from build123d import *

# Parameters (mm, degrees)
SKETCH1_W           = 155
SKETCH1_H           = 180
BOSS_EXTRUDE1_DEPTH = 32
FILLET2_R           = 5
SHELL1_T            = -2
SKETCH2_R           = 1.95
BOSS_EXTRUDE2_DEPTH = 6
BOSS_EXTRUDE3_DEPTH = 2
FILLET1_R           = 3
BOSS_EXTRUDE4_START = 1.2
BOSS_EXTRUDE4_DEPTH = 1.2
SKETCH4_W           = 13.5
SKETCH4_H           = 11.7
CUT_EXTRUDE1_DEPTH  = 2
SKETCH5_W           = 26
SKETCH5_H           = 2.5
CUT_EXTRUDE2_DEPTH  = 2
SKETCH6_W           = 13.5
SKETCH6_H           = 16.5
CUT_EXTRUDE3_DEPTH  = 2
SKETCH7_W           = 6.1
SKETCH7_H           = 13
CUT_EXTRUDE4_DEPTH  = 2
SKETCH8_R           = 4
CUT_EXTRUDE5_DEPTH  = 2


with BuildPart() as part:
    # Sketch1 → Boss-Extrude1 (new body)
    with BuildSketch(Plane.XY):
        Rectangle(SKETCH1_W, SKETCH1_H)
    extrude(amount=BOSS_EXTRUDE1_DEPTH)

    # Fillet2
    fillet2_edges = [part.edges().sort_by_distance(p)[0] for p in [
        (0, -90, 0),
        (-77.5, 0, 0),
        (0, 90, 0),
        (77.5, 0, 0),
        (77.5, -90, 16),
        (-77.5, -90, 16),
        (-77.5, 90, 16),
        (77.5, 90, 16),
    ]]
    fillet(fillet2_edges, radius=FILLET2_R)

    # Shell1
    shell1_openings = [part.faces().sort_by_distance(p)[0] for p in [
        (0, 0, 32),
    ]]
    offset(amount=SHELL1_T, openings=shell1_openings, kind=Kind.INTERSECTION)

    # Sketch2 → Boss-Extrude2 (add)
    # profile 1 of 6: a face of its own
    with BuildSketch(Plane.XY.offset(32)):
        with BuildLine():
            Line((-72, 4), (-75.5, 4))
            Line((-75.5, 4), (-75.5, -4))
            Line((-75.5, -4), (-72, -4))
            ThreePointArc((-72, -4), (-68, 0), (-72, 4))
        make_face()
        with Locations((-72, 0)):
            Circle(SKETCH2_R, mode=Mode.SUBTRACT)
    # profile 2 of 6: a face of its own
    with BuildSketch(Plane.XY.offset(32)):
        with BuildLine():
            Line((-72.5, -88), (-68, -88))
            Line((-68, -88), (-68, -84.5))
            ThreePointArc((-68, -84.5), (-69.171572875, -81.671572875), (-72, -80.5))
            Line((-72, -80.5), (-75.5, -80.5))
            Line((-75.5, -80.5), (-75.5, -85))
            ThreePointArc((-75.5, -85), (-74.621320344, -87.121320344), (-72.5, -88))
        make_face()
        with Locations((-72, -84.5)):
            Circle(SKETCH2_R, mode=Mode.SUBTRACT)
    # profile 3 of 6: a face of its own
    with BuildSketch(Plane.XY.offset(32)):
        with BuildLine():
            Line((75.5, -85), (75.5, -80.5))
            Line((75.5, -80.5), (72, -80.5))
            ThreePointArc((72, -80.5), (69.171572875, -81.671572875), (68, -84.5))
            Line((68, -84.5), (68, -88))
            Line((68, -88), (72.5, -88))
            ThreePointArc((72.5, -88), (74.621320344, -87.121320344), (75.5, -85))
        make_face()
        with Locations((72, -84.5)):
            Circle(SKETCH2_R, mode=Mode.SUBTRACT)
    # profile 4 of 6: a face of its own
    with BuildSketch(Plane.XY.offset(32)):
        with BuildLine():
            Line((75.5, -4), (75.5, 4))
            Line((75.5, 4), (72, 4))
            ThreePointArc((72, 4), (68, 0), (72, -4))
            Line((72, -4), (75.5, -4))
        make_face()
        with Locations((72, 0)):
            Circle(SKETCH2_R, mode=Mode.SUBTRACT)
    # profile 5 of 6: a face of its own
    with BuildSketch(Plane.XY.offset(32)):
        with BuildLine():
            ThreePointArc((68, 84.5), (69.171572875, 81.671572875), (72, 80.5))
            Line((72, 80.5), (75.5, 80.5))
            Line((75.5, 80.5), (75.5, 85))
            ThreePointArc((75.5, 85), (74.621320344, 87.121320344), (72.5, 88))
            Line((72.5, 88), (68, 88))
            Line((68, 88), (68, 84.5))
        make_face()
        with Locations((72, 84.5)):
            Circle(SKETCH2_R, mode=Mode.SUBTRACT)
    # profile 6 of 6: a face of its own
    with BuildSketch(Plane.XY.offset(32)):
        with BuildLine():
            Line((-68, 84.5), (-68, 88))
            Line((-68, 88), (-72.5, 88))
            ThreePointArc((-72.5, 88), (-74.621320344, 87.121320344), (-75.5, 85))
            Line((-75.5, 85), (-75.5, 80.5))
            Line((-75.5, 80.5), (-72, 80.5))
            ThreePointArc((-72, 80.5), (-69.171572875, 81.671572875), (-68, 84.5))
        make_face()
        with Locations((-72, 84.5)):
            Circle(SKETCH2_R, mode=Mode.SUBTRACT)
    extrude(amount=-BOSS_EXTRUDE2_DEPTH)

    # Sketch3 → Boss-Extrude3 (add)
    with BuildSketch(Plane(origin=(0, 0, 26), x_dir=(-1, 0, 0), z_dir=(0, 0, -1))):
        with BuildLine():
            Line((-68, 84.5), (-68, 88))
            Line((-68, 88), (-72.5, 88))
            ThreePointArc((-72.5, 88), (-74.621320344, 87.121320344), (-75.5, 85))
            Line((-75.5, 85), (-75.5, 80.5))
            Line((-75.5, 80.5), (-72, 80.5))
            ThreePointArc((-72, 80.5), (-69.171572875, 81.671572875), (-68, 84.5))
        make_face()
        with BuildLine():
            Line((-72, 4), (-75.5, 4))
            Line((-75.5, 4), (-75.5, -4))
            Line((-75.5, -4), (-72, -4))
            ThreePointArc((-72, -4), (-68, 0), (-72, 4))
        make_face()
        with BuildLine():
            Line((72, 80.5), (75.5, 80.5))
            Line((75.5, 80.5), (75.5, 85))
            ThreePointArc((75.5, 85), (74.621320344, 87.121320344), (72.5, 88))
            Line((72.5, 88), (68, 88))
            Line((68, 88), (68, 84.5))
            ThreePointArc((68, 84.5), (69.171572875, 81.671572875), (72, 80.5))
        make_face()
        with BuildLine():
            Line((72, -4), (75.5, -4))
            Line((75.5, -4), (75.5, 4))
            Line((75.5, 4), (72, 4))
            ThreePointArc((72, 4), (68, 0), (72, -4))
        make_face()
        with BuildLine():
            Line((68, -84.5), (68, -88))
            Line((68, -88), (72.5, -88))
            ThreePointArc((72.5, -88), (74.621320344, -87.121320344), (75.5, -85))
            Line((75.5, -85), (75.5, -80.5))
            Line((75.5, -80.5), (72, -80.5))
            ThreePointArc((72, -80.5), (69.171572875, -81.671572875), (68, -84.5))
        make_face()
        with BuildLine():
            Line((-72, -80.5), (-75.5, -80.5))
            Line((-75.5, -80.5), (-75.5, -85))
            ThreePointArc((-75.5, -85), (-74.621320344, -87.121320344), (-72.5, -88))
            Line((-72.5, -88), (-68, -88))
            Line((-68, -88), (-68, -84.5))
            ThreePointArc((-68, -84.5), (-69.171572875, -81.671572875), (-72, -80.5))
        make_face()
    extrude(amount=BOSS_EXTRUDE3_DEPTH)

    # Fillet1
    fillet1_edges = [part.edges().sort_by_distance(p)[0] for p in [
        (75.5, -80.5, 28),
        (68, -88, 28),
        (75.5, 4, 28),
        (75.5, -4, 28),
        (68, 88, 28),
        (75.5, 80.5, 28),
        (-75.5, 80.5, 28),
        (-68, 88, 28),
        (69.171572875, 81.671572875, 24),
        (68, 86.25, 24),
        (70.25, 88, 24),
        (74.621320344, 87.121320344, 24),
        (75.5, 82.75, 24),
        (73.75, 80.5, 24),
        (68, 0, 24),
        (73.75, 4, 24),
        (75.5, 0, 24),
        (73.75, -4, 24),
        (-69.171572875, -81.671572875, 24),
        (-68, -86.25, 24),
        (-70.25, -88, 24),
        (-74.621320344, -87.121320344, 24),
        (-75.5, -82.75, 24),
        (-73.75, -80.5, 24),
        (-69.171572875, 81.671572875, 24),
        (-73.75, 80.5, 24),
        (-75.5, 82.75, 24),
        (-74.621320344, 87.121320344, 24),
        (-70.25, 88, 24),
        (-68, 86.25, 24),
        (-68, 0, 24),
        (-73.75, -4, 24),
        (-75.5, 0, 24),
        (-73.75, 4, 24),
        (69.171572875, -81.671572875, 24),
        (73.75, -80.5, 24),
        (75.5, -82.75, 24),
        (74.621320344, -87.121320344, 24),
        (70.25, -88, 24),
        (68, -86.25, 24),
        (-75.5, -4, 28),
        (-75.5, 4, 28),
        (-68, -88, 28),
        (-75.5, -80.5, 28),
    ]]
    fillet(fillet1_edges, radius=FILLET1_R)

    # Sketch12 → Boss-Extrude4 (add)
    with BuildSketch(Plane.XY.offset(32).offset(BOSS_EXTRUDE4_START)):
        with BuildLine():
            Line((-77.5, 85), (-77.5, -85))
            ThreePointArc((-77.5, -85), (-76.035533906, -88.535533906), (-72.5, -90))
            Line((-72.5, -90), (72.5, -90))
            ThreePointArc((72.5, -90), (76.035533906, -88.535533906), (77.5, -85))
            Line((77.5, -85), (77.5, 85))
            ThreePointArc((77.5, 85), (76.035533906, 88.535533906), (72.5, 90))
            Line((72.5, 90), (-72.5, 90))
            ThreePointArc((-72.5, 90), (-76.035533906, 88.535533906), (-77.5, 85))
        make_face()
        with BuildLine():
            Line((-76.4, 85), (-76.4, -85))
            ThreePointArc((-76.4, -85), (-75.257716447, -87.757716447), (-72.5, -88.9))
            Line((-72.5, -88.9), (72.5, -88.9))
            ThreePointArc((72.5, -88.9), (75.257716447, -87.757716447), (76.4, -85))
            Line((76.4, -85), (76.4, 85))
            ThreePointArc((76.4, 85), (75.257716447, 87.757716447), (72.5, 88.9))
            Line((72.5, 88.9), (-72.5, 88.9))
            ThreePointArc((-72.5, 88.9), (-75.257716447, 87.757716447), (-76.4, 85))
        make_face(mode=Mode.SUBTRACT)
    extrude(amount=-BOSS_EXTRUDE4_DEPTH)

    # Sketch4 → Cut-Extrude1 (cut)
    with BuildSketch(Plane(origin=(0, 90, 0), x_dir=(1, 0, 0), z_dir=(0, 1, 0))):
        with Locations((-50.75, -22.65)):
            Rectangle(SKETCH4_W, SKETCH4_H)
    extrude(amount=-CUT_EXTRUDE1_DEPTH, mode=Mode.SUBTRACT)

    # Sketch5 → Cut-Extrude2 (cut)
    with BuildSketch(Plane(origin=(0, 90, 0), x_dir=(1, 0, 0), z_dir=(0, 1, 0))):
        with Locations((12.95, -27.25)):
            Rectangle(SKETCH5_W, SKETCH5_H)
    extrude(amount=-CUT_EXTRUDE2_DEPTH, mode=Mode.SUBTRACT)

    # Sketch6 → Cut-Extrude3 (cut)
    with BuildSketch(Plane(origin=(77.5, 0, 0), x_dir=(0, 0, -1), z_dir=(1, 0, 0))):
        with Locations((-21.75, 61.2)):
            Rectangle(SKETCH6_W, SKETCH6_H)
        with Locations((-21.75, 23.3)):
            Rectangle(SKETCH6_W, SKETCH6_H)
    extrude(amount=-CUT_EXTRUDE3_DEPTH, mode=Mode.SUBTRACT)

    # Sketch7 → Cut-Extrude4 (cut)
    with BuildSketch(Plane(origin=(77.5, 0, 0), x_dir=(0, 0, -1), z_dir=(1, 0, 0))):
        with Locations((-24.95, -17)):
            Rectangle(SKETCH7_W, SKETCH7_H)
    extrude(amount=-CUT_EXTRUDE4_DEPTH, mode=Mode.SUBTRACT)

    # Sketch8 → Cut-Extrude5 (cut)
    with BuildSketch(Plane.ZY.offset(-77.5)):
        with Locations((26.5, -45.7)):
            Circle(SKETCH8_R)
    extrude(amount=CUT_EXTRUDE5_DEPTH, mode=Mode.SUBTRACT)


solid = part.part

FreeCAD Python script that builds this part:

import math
import FreeCAD as App
import Part
import Sketcher

V = App.Vector
Q = App.Units.Quantity


def edges_at(feature, points):
    """Names of the edges that pass closest to the given points."""
    edges = feature.Shape.Edges
    near = lambda p: min(range(len(edges)), key=lambda i: edges[i].distToShape(Part.Vertex(*p))[0])
    return sorted({f"Edge{near(p) + 1}" for p in points})


def faces_at(feature, points):
    """Names of the faces that lie closest to the given points."""
    faces = feature.Shape.Faces
    near = lambda p: min(range(len(faces)), key=lambda i: faces[i].distToShape(Part.Vertex(*p))[0])
    return sorted({f"Face{near(p) + 1}" for p in points})

doc = App.newDocument("Part")
body = doc.addObject("PartDesign::Body", "Body")

# Sketch on XY plane
sketch1 = body.newObject("Sketcher::SketchObject", "Sketch")
sketch1.AttachmentSupport = (doc.getObject("XY_Plane"), [""])
sketch1.MapMode = "FlatFace"
sketch1.addGeometry([
    Part.LineSegment(V(-78, 90, 0), V(-78, -90, 0)),
    Part.LineSegment(V(-78, -90, 0), V(78, -90, 0)),
    Part.LineSegment(V(78, -90, 0), V(78, 90, 0)),
    Part.LineSegment(V(78, 90, 0), V(-78, 90, 0)),
], False)
sketch1.addConstraint([
    Sketcher.Constraint("Coincident", 0, 2, 1, 1),
    Sketcher.Constraint("Coincident", 1, 2, 2, 1),
    Sketcher.Constraint("Coincident", 2, 2, 3, 1),
    Sketcher.Constraint("Coincident", 3, 2, 0, 1),
    Sketcher.Constraint("Vertical", 0),
    Sketcher.Constraint("Horizontal", 1),
    Sketcher.Constraint("Vertical", 2),
    Sketcher.Constraint("Horizontal", 3),
    Sketcher.Constraint("Symmetric", 0, 2, 2, 2, -1, 1),
    Sketcher.Constraint("DistanceX", 1, 1, 1, 2, Q("155 mm")),
    Sketcher.Constraint("DistanceY", 0, 2, 0, 1, Q("180 mm")),
])
pad1 = body.newObject("PartDesign::Pad", "Pad")
pad1.Profile = sketch1
pad1.Length = 32
doc.recompute()

fillet = body.newObject("PartDesign::Fillet", "Fillet")
fillet.Base = (pad1, edges_at(pad1, [
    (0, -90, 0),
    (-77.5, 0, 0),
    (0, 90, 0),
    (77.5, 0, 0),
    (77.5, -90, 16),
    (-77.5, -90, 16),
    (-77.5, 90, 16),
    (77.5, 90, 16),
]))
fillet.Radius = 5
doc.recompute()

thickness = body.newObject("PartDesign::Thickness", "Thickness")
thickness.Base = (fillet, faces_at(fillet, [(0, 0, 32)]))
thickness.Value = 2
thickness.Reversed = True
thickness.Join = "Intersection"

# Sketch on XY plane
sketch2 = body.newObject("Sketcher::SketchObject", "Sketch001")
sketch2.AttachmentSupport = (doc.getObject("XY_Plane"), [""])
sketch2.MapMode = "FlatFace"
sketch2.AttachmentOffset = App.Placement(V(0, 0, 32), App.Rotation())
sketch2.addGeometry([
    Part.LineSegment(V(-72, 4, 0), V(-75.5, 4, 0)),  # 0
    Part.LineSegment(V(-75.5, 4, 0), V(-75.5, -4, 0)),  # 1
    Part.LineSegment(V(-75.5, -4, 0), V(-72, -4, 0)),  # 2
    Part.ArcOfCircle(Part.Circle(V(-72, 0, 0), V(0, 0, 1), 4), math.radians(-90), math.radians(90)),  # 3
    Part.Circle(V(-72, 0, 0), V(0, 0, 1), 1.9),  # 4
    Part.LineSegment(V(-72.5, -88, 0), V(-68, -88, 0)),  # 5
    Part.LineSegment(V(-68, -88, 0), V(-68, -84.5, 0)),  # 6
    Part.ArcOfCircle(Part.Circle(V(-72, -84.5, 0), V(0, 0, 1), 4), math.radians(0), math.radians(90)),  # 7
    Part.LineSegment(V(-72, -80.5, 0), V(-75.5, -80.5, 0)),  # 8
    Part.LineSegment(V(-75.5, -80.5, 0), V(-75.5, -85, 0)),  # 9
    Part.ArcOfCircle(Part.Circle(V(-72.5, -85, 0), V(0, 0, 1), 3), math.radians(180), math.radians(270)),  # 10
    Part.Circle(V(-72, -84.5, 0), V(0, 0, 1), 1.9),  # 11
    Part.LineSegment(V(75.5, -85, 0), V(75.5, -80.5, 0)),  # 12
    Part.LineSegment(V(75.5, -80.5, 0), V(72, -80.5, 0)),  # 13
    Part.ArcOfCircle(Part.Circle(V(72, -84.5, 0), V(0, 0, 1), 4), math.radians(90), math.radians(180)),  # 14
    Part.LineSegment(V(68, -84.5, 0), V(68, -88, 0)),  # 15
    Part.LineSegment(V(68, -88, 0), V(72.5, -88, 0)),  # 16
    Part.ArcOfCircle(Part.Circle(V(72.5, -85, 0), V(0, 0, 1), 3), math.radians(-90), math.radians(0)),  # 17
    Part.Circle(V(72, -84.5, 0), V(0, 0, 1), 1.9),  # 18
    Part.LineSegment(V(75.5, -4, 0), V(75.5, 4, 0)),  # 19
    Part.LineSegment(V(75.5, 4, 0), V(72, 4, 0)),  # 20
    Part.ArcOfCircle(Part.Circle(V(72, 0, 0), V(0, 0, 1), 4), math.radians(90), math.radians(270)),  # 21
    Part.LineSegment(V(72, -4, 0), V(75.5, -4, 0)),  # 22
    Part.Circle(V(72, 0, 0), V(0, 0, 1), 1.9),  # 23
    Part.ArcOfCircle(Part.Circle(V(72, 84.5, 0), V(0, 0, 1), 4), math.radians(180), math.radians(270)),  # 24
    Part.LineSegment(V(72, 80.5, 0), V(75.5, 80.5, 0)),  # 25
    Part.LineSegment(V(75.5, 80.5, 0), V(75.5, 85, 0)),  # 26
    Part.ArcOfCircle(Part.Circle(V(72.5, 85, 0), V(0, 0, 1), 3), math.radians(0), math.radians(90)),  # 27
    Part.LineSegment(V(72.5, 88, 0), V(68, 88, 0)),  # 28
    Part.LineSegment(V(68, 88, 0), V(68, 84.5, 0)),  # 29
    Part.Circle(V(72, 84.5, 0), V(0, 0, 1), 1.9),  # 30
    Part.LineSegment(V(-68, 84.5, 0), V(-68, 88, 0)),  # 31
    Part.LineSegment(V(-68, 88, 0), V(-72.5, 88, 0)),  # 32
    Part.ArcOfCircle(Part.Circle(V(-72.5, 85, 0), V(0, 0, 1), 3), math.radians(90), math.radians(180)),  # 33
    Part.LineSegment(V(-75.5, 85, 0), V(-75.5, 80.5, 0)),  # 34
    Part.LineSegment(V(-75.5, 80.5, 0), V(-72, 80.5, 0)),  # 35
    Part.ArcOfCircle(Part.Circle(V(-72, 84.5, 0), V(0, 0, 1), 4), math.radians(-90), math.radians(0)),  # 36
    Part.Circle(V(-72, 84.5, 0), V(0, 0, 1), 1.9),  # 37
], False)
sketch2.addConstraint([
    Sketcher.Constraint("Coincident", 0, 2, 1, 1),
    Sketcher.Constraint("Coincident", 1, 2, 2, 1),
    Sketcher.Constraint("Tangent", 2, 2, 3, 1),
    Sketcher.Constraint("Tangent", 3, 2, 0, 1),
    Sketcher.Constraint("Coincident", 5, 2, 6, 1),
    Sketcher.Constraint("Tangent", 6, 2, 7, 1),
    Sketcher.Constraint("Tangent", 7, 2, 8, 1),
    Sketcher.Constraint("Coincident", 8, 2, 9, 1),
    Sketcher.Constraint("Tangent", 9, 2, 10, 1),
    Sketcher.Constraint("Tangent", 10, 2, 5, 1),
    Sketcher.Constraint("Coincident", 12, 2, 13, 1),
    Sketcher.Constraint("Tangent", 13, 2, 14, 1),
    Sketcher.Constraint("Tangent", 14, 2, 15, 1),
    Sketcher.Constraint("Coincident", 15, 2, 16, 1),
    Sketcher.Constraint("Tangent", 16, 2, 17, 1),
    Sketcher.Constraint("Tangent", 17, 2, 12, 1),
    Sketcher.Constraint("Coincident", 19, 2, 20, 1),
    Sketcher.Constraint("Tangent", 20, 2, 21, 1),
    Sketcher.Constraint("Tangent", 21, 2, 22, 1),
    Sketcher.Constraint("Coincident", 22, 2, 19, 1),
    Sketcher.Constraint("Tangent", 24, 2, 25, 1),
    Sketcher.Constraint("Coincident", 25, 2, 26, 1),
    Sketcher.Constraint("Tangent", 26, 2, 27, 1),
    Sketcher.Constraint("Tangent", 27, 2, 28, 1),
    Sketcher.Constraint("Coincident", 28, 2, 29, 1),
    Sketcher.Constraint("Tangent", 29, 2, 24, 1),
    Sketcher.Constraint("Coincident", 31, 2, 32, 1),
    Sketcher.Constraint("Tangent", 32, 2, 33, 1),
    Sketcher.Constraint("Tangent", 33, 2, 34, 1),
    Sketcher.Constraint("Coincident", 34, 2, 35, 1),
    Sketcher.Constraint("Tangent", 35, 2, 36, 1),
    Sketcher.Constraint("Tangent", 36, 2, 31, 1),
    Sketcher.Constraint("Horizontal", 0),
    Sketcher.Constraint("Vertical", 1),
    Sketcher.Constraint("Horizontal", 2),
    Sketcher.Constraint("Horizontal", 5),
    Sketcher.Constraint("Vertical", 6),
    Sketcher.Constraint("Horizontal", 8),
    Sketcher.Constraint("Vertical", 9),
    Sketcher.Constraint("Vertical", 12),
    Sketcher.Constraint("Horizontal", 13),
    Sketcher.Constraint("Vertical", 15),
    Sketcher.Constraint("Horizontal", 16),
    Sketcher.Constraint("Vertical", 19),
    Sketcher.Constraint("Horizontal", 20),
    Sketcher.Constraint("Horizontal", 22),
    Sketcher.Constraint("Horizontal", 25),
    Sketcher.Constraint("Vertical", 26),
    Sketcher.Constraint("Horizontal", 28),
    Sketcher.Constraint("Vertical", 29),
    Sketcher.Constraint("Vertical", 31),
    Sketcher.Constraint("Horizontal", 32),
    Sketcher.Constraint("Vertical", 34),
    Sketcher.Constraint("Horizontal", 35),
    Sketcher.Constraint("Coincident", 4, 3, 3, 3),
    Sketcher.Constraint("Coincident", 11, 3, 7, 3),
    Sketcher.Constraint("Coincident", 18, 3, 14, 3),
    Sketcher.Constraint("Coincident", 23, 3, 21, 3),
    Sketcher.Constraint("Coincident", 30, 3, 24, 3),
    Sketcher.Constraint("Coincident", 37, 3, 36, 3),
    Sketcher.Constraint("Equal", 3, 7),
    Sketcher.Constraint("Equal", 4, 11),
    Sketcher.Constraint("Equal", 7, 14),
    Sketcher.Constraint("Equal", 10, 17),
    Sketcher.Constraint("Equal", 11, 18),
    Sketcher.Constraint("Equal", 14, 21),
    Sketcher.Constraint("Equal", 18, 23),
    Sketcher.Constraint("Equal", 21, 24),
    Sketcher.Constraint("Equal", 17, 27),
    Sketcher.Constraint("Equal", 23, 30),
    Sketcher.Constraint("Equal", 27, 33),
    Sketcher.Constraint("Equal", 24, 36),
    Sketcher.Constraint("Equal", 30, 37),
    Sketcher.Constraint("Symmetric", 3, 3, 21, 3, -1, 1),
    Sketcher.Constraint("Symmetric", 7, 3, 24, 3, -1, 1),
    Sketcher.Constraint("Symmetric", 10, 3, 27, 3, -1, 1),
    Sketcher.Constraint("Symmetric", 17, 3, 33, 3, -1, 1),
    Sketcher.Constraint("Symmetric", 14, 3, 36, 3, -1, 1),
    Sketcher.Constraint("Symmetric", 7, 3, 14, 3, -2),
    Sketcher.Constraint("Symmetric", 10, 3, 17, 3, -2),
    Sketcher.Constraint("Symmetric", 0, 2, 19, 2, -2),
    Sketcher.Constraint("Vertical", 4, 3, 7, 3),
    Sketcher.Constraint("Vertical", 1, 2, 8, 2),
    Sketcher.Constraint("Equal", 35, 6),
    Sketcher.Constraint("Radius", 3, Q("4 mm")),
    Sketcher.Constraint("Radius", 10, Q("3 mm")),
    Sketcher.Constraint("Diameter", 4, Q("3.9 mm")),
    Sketcher.Constraint("DistanceX", 0, 2, 0, 1, Q("3.5 mm")),
    Sketcher.Constraint("DistanceX", 3, 3, -1, 1, Q("72 mm")),
    Sketcher.Constraint("DistanceY", 10, 3, -1, 1, Q("85 mm")),
])
pad2 = body.newObject("PartDesign::Pad", "Pad001")
pad2.Profile = sketch2
pad2.Length = 6
pad2.Reversed = True

# Sketch on XY plane
sketch3 = body.newObject("Sketcher::SketchObject", "Sketch002")
sketch3.AttachmentSupport = (doc.getObject("XY_Plane"), [""])
sketch3.MapMode = "FlatFace"
sketch3.AttachmentOffset = App.Placement(V(0, 0, 26), App.Rotation())
sketch3.addGeometry([
    Part.LineSegment(V(68, 84.5, 0), V(68, 88, 0)),  # 0
    Part.LineSegment(V(68, 88, 0), V(72.5, 88, 0)),  # 1
    Part.ArcOfCircle(Part.Circle(V(72.5, 85, 0), V(0, 0, 1), 3), math.radians(0), math.radians(90)),  # 2
    Part.LineSegment(V(75.5, 85, 0), V(75.5, 80.5, 0)),  # 3
    Part.LineSegment(V(75.5, 80.5, 0), V(72, 80.5, 0)),  # 4
    Part.ArcOfCircle(Part.Circle(V(72, 84.5, 0), V(0, 0, 1), 4), math.radians(180), math.radians(270)),  # 5
    Part.LineSegment(V(72, 4, 0), V(75.5, 4, 0)),  # 6
    Part.LineSegment(V(75.5, 4, 0), V(75.5, -4, 0)),  # 7
    Part.LineSegment(V(75.5, -4, 0), V(72, -4, 0)),  # 8
    Part.ArcOfCircle(Part.Circle(V(72, 0, 0), V(0, 0, 1), 4), math.radians(90), math.radians(270)),  # 9
    Part.LineSegment(V(-72, 80.5, 0), V(-75.5, 80.5, 0)),  # 10
    Part.LineSegment(V(-75.5, 80.5, 0), V(-75.5, 85, 0)),  # 11
    Part.ArcOfCircle(Part.Circle(V(-72.5, 85, 0), V(0, 0, 1), 3), math.radians(90), math.radians(180)),  # 12
    Part.LineSegment(V(-72.5, 88, 0), V(-68, 88, 0)),  # 13
    Part.LineSegment(V(-68, 88, 0), V(-68, 84.5, 0)),  # 14
    Part.ArcOfCircle(Part.Circle(V(-72, 84.5, 0), V(0, 0, 1), 4), math.radians(-90), math.radians(0)),  # 15
    Part.LineSegment(V(-72, -4, 0), V(-75.5, -4, 0)),  # 16
    Part.LineSegment(V(-75.5, -4, 0), V(-75.5, 4, 0)),  # 17
    Part.LineSegment(V(-75.5, 4, 0), V(-72, 4, 0)),  # 18
    Part.ArcOfCircle(Part.Circle(V(-72, 0, 0), V(0, 0, 1), 4), math.radians(-90), math.radians(90)),  # 19
    Part.LineSegment(V(-68, -84.5, 0), V(-68, -88, 0)),  # 20
    Part.LineSegment(V(-68, -88, 0), V(-72.5, -88, 0)),  # 21
    Part.ArcOfCircle(Part.Circle(V(-72.5, -85, 0), V(0, 0, 1), 3), math.radians(180), math.radians(270)),  # 22
    Part.LineSegment(V(-75.5, -85, 0), V(-75.5, -80.5, 0)),  # 23
    Part.LineSegment(V(-75.5, -80.5, 0), V(-72, -80.5, 0)),  # 24
    Part.ArcOfCircle(Part.Circle(V(-72, -84.5, 0), V(0, 0, 1), 4), math.radians(0), math.radians(90)),  # 25
    Part.LineSegment(V(72, -80.5, 0), V(75.5, -80.5, 0)),  # 26
    Part.LineSegment(V(75.5, -80.5, 0), V(75.5, -85, 0)),  # 27
    Part.ArcOfCircle(Part.Circle(V(72.5, -85, 0), V(0, 0, 1), 3), math.radians(-90), math.radians(0)),  # 28
    Part.LineSegment(V(72.5, -88, 0), V(68, -88, 0)),  # 29
    Part.LineSegment(V(68, -88, 0), V(68, -84.5, 0)),  # 30
    Part.ArcOfCircle(Part.Circle(V(72, -84.5, 0), V(0, 0, 1), 4), math.radians(90), math.radians(180)),  # 31
], False)
sketch3.addConstraint([
    Sketcher.Constraint("Coincident", 0, 2, 1, 1),
    Sketcher.Constraint("Tangent", 1, 2, 2, 2),
    Sketcher.Constraint("Tangent", 2, 1, 3, 1),
    Sketcher.Constraint("Coincident", 3, 2, 4, 1),
    Sketcher.Constraint("Tangent", 4, 2, 5, 2),
    Sketcher.Constraint("Tangent", 5, 1, 0, 1),
    Sketcher.Constraint("Coincident", 6, 2, 7, 1),
    Sketcher.Constraint("Coincident", 7, 2, 8, 1),
    Sketcher.Constraint("Tangent", 8, 2, 9, 2),
    Sketcher.Constraint("Tangent", 9, 1, 6, 1),
    Sketcher.Constraint("Coincident", 10, 2, 11, 1),
    Sketcher.Constraint("Tangent", 11, 2, 12, 2),
    Sketcher.Constraint("Tangent", 12, 1, 13, 1),
    Sketcher.Constraint("Coincident", 13, 2, 14, 1),
    Sketcher.Constraint("Tangent", 14, 2, 15, 2),
    Sketcher.Constraint("Tangent", 15, 1, 10, 1),
    Sketcher.Constraint("Coincident", 16, 2, 17, 1),
    Sketcher.Constraint("Coincident", 17, 2, 18, 1),
    Sketcher.Constraint("Tangent", 18, 2, 19, 2),
    Sketcher.Constraint("Tangent", 19, 1, 16, 1),
    Sketcher.Constraint("Coincident", 20, 2, 21, 1),
    Sketcher.Constraint("Tangent", 21, 2, 22, 2),
    Sketcher.Constraint("Tangent", 22, 1, 23, 1),
    Sketcher.Constraint("Coincident", 23, 2, 24, 1),
    Sketcher.Constraint("Tangent", 24, 2, 25, 2),
    Sketcher.Constraint("Tangent", 25, 1, 20, 1),
    Sketcher.Constraint("Coincident", 26, 2, 27, 1),
    Sketcher.Constraint("Tangent", 27, 2, 28, 2),
    Sketcher.Constraint("Tangent", 28, 1, 29, 1),
    Sketcher.Constraint("Coincident", 29, 2, 30, 1),
    Sketcher.Constraint("Tangent", 30, 2, 31, 2),
    Sketcher.Constraint("Tangent", 31, 1, 26, 1),
    Sketcher.Constraint("Vertical", 0),
    Sketcher.Constraint("Horizontal", 1),
    Sketcher.Constraint("Vertical", 3),
    Sketcher.Constraint("Horizontal", 4),
    Sketcher.Constraint("Horizontal", 6),
    Sketcher.Constraint("Vertical", 7),
    Sketcher.Constraint("Horizontal", 8),
    Sketcher.Constraint("Horizontal", 10),
    Sketcher.Constraint("Vertical", 11),
    Sketcher.Constraint("Horizontal", 13),
    Sketcher.Constraint("Vertical", 14),
    Sketcher.Constraint("Horizontal", 16),
    Sketcher.Constraint("Vertical", 17),
    Sketcher.Constraint("Horizontal", 18),
    Sketcher.Constraint("Vertical", 20),
    Sketcher.Constraint("Horizontal", 21),
    Sketcher.Constraint("Vertical", 23),
    Sketcher.Constraint("Horizontal", 24),
    Sketcher.Constraint("Horizontal", 26),
    Sketcher.Constraint("Vertical", 27),
    Sketcher.Constraint("Horizontal", 29),
    Sketcher.Constraint("Vertical", 30),
    Sketcher.Constraint("Equal", 5, 9),
    Sketcher.Constraint("Equal", 2, 12),
    Sketcher.Constraint("Equal", 9, 15),
    Sketcher.Constraint("Equal", 15, 19),
    Sketcher.Constraint("Equal", 12, 22),
    Sketcher.Constraint("Equal", 19, 25),
    Sketcher.Constraint("Equal", 22, 28),
    Sketcher.Constraint("Equal", 25, 31),
    Sketcher.Constraint("Symmetric", 9, 3, 19, 3, -1, 1),
    Sketcher.Constraint("Symmetric", 2, 3, 22, 3, -1, 1),
    Sketcher.Constraint("Symmetric", 5, 3, 25, 3, -1, 1),
    Sketcher.Constraint("Symmetric", 12, 3, 28, 3, -1, 1),
    Sketcher.Constraint("Symmetric", 15, 3, 31, 3, -1, 1),
    Sketcher.Constraint("Symmetric", 2, 3, 12, 3, -2),
    Sketcher.Constraint("Symmetric", 5, 3, 15, 3, -2),
    Sketcher.Constraint("Symmetric", 7, 2, 16, 2, -2),
    Sketcher.Constraint("Vertical", 5, 3, 9, 3),
    Sketcher.Constraint("Vertical", 3, 2, 6, 2),
    Sketcher.Constraint("Equal", 26, 0),
    Sketcher.Constraint("Radius", 2, Q("3 mm")),
    Sketcher.Constraint("Radius", 5, Q("4 mm")),
    Sketcher.Constraint("DistanceX", 1, 1, 1, 2, Q("4.5 mm")),
    Sketcher.Constraint("DistanceY", -1, 1, 2, 3, Q("85 mm")),
    Sketcher.Constraint("DistanceX", -1, 1, 5, 3, Q("72 mm")),
])
pad3 = body.newObject("PartDesign::Pad", "Pad002")
pad3.Profile = sketch3
pad3.Length = 2
pad3.Reversed = True
doc.recompute()

fillet2 = body.newObject("PartDesign::Fillet", "Fillet001")
fillet2.Base = (pad3, edges_at(pad3, [
    (75.5, -80.5, 28),
    (68, -88, 28),
    (75.5, 4, 28),
    (75.5, -4, 28),
    (68, 88, 28),
    (75.5, 80.5, 28),
    (-75.5, 80.5, 28),
    (-68, 88, 28),
    (69.172, 81.672, 24),
    (68, 86.25, 24),
    (70.25, 88, 24),
    (74.621, 87.121, 24),
    (75.5, 82.75, 24),
    (73.75, 80.5, 24),
    (68, 0, 24),
    (73.75, 4, 24),
    (75.5, 0, 24),
    (73.75, -4, 24),
    (-69.172, -81.672, 24),
    (-68, -86.25, 24),
    (-70.25, -88, 24),
    (-74.621, -87.121, 24),
    (-75.5, -82.75, 24),
    (-73.75, -80.5, 24),
    (-69.172, 81.672, 24),
    (-73.75, 80.5, 24),
    (-75.5, 82.75, 24),
    (-74.621, 87.121, 24),
    (-70.25, 88, 24),
    (-68, 86.25, 24),
    (-68, 0, 24),
    (-73.75, -4, 24),
    (-75.5, 0, 24),
    (-73.75, 4, 24),
    (69.172, -81.672, 24),
    (73.75, -80.5, 24),
    (75.5, -82.75, 24),
    (74.621, -87.121, 24),
    (70.25, -88, 24),
    (68, -86.25, 24),
    (-75.5, -4, 28),
    (-75.5, 4, 28),
    (-68, -88, 28),
    (-75.5, -80.5, 28),
]))
fillet2.Radius = 3

# Sketch on XY plane
sketch4 = body.newObject("Sketcher::SketchObject", "Sketch003")
sketch4.AttachmentSupport = (doc.getObject("XY_Plane"), [""])
sketch4.MapMode = "FlatFace"
sketch4.AttachmentOffset = App.Placement(V(0, 0, 33.2), App.Rotation())
sketch4.addGeometry([
    Part.LineSegment(V(-77.5, 85, 0), V(-77.5, -85, 0)),  # 0
    Part.ArcOfCircle(Part.Circle(V(-72.5, -85, 0), V(0, 0, 1), 5), math.radians(180), math.radians(270)),  # 1
    Part.LineSegment(V(-72.5, -90, 0), V(72.5, -90, 0)),  # 2
    Part.ArcOfCircle(Part.Circle(V(72.5, -85, 0), V(0, 0, 1), 5), math.radians(-90), math.radians(0)),  # 3
    Part.LineSegment(V(77.5, -85, 0), V(77.5, 85, 0)),  # 4
    Part.ArcOfCircle(Part.Circle(V(72.5, 85, 0), V(0, 0, 1), 5), math.radians(0), math.radians(90)),  # 5
    Part.LineSegment(V(72.5, 90, 0), V(-72.5, 90, 0)),  # 6
    Part.ArcOfCircle(Part.Circle(V(-72.5, 85, 0), V(0, 0, 1), 5), math.radians(90), math.radians(180)),  # 7
    Part.LineSegment(V(-76.4, -85, 0), V(-76.4, 85, 0)),  # 8
    Part.ArcOfCircle(Part.Circle(V(-72.5, 85, 0), V(0, 0, 1), 3.9), math.radians(90), math.radians(180)),  # 9
    Part.LineSegment(V(-72.5, 88.9, 0), V(72.5, 88.9, 0)),  # 10
    Part.ArcOfCircle(Part.Circle(V(72.5, 85, 0), V(0, 0, 1), 3.9), math.radians(0), math.radians(90)),  # 11
    Part.LineSegment(V(76.4, 85, 0), V(76.4, -85, 0)),  # 12
    Part.ArcOfCircle(Part.Circle(V(72.5, -85, 0), V(0, 0, 1), 3.9), math.radians(-90), math.radians(0)),  # 13
    Part.LineSegment(V(72.5, -88.9, 0), V(-72.5, -88.9, 0)),  # 14
    Part.ArcOfCircle(Part.Circle(V(-72.5, -85, 0), V(0, 0, 1), 3.9), math.radians(180), math.radians(270)),  # 15
], False)
sketch4.addConstraint([
    Sketcher.Constraint("Tangent", 0, 2, 1, 1),
    Sketcher.Constraint("Tangent", 1, 2, 2, 1),
    Sketcher.Constraint("Tangent", 2, 2, 3, 1),
    Sketcher.Constraint("Tangent", 3, 2, 4, 1),
    Sketcher.Constraint("Tangent", 4, 2, 5, 1),
    Sketcher.Constraint("Tangent", 5, 2, 6, 1),
    Sketcher.Constraint("Tangent", 6, 2, 7, 1),
    Sketcher.Constraint("Tangent", 7, 2, 0, 1),
    Sketcher.Constraint("Tangent", 8, 2, 9, 2),
    Sketcher.Constraint("Tangent", 9, 1, 10, 1),
    Sketcher.Constraint("Tangent", 10, 2, 11, 2),
    Sketcher.Constraint("Tangent", 11, 1, 12, 1),
    Sketcher.Constraint("Tangent", 12, 2, 13, 2),
    Sketcher.Constraint("Tangent", 13, 1, 14, 1),
    Sketcher.Constraint("Tangent", 14, 2, 15, 2),
    Sketcher.Constraint("Tangent", 15, 1, 8, 1),
    Sketcher.Constraint("Vertical", 0),
    Sketcher.Constraint("Horizontal", 2),
    Sketcher.Constraint("Vertical", 4),
    Sketcher.Constraint("Horizontal", 6),
    Sketcher.Constraint("Vertical", 8),
    Sketcher.Constraint("Horizontal", 10),
    Sketcher.Constraint("Vertical", 12),
    Sketcher.Constraint("Horizontal", 14),
    Sketcher.Constraint("Coincident", 9, 3, 7, 3),
    Sketcher.Constraint("Coincident", 11, 3, 5, 3),
    Sketcher.Constraint("Coincident", 13, 3, 3, 3),
    Sketcher.Constraint("Equal", 1, 3),
    Sketcher.Constraint("Equal", 3, 5),
    Sketcher.Constraint("Equal", 5, 7),
    Sketcher.Constraint("Equal", 13, 15),
    Sketcher.Constraint("Symmetric", 1, 3, 5, 3, -1, 1),
    Sketcher.Constraint("Radius", 1, Q("5 mm")),
    Sketcher.Constraint("Radius", 9, Q("3.9 mm")),
    Sketcher.Constraint("DistanceX", 2, 1, 2, 2, Q("145 mm")),
    Sketcher.Constraint("DistanceY", 0, 2, 0, 1, Q("170 mm")),
])
pad4 = body.newObject("PartDesign::Pad", "Pad003")
pad4.Profile = sketch4
pad4.Length = 1.2
pad4.Reversed = True

# Sketch on XZ plane
sketch5 = body.newObject("Sketcher::SketchObject", "Sketch004")
sketch5.AttachmentSupport = (doc.getObject("XZ_Plane"), [""])
sketch5.MapMode = "FlatFace"
sketch5.AttachmentOffset = App.Placement(V(0, 0, -90), App.Rotation())
sketch5.addGeometry([
    Part.LineSegment(V(-58, 17, 0), V(-58, 28, 0)),
    Part.LineSegment(V(-58, 28, 0), V(-44, 28, 0)),
    Part.LineSegment(V(-44, 28, 0), V(-44, 17, 0)),
    Part.LineSegment(V(-44, 17, 0), V(-58, 17, 0)),
], False)
sketch5.addConstraint([
    Sketcher.Constraint("Coincident", 0, 2, 1, 1),
    Sketcher.Constraint("Coincident", 1, 2, 2, 1),
    Sketcher.Constraint("Coincident", 2, 2, 3, 1),
    Sketcher.Constraint("Coincident", 3, 2, 0, 1),
    Sketcher.Constraint("Vertical", 0),
    Sketcher.Constraint("Horizontal", 1),
    Sketcher.Constraint("Vertical", 2),
    Sketcher.Constraint("Horizontal", 3),
    Sketcher.Constraint("DistanceX", 1, 1, 1, 2, Q("13.5 mm")),
    Sketcher.Constraint("DistanceY", 0, 1, 0, 2, Q("11.7 mm")),
    Sketcher.Constraint("DistanceX", 1, 2, -1, 1, Q("44 mm")),
    Sketcher.Constraint("DistanceY", -1, 1, 0, 2, Q("28.5 mm")),
])
pocket1 = body.newObject("PartDesign::Pocket", "Pocket")
pocket1.Profile = sketch5
pocket1.Length = 2
pocket1.Reversed = True

# Sketch on XZ plane
sketch6 = body.newObject("Sketcher::SketchObject", "Sketch005")
sketch6.AttachmentSupport = (doc.getObject("XZ_Plane"), [""])
sketch6.MapMode = "FlatFace"
sketch6.AttachmentOffset = App.Placement(V(0, 0, -90), App.Rotation())
sketch6.addGeometry([
    Part.LineSegment(V(-0.1, 26, 0), V(-0.1, 28.5, 0)),
    Part.LineSegment(V(-0.1, 28.5, 0), V(25.9, 28.5, 0)),
    Part.LineSegment(V(25.9, 28.5, 0), V(25.9, 26, 0)),
    Part.LineSegment(V(25.9, 26, 0), V(-0.1, 26, 0)),
], False)
sketch6.addConstraint([
    Sketcher.Constraint("Coincident", 0, 2, 1, 1),
    Sketcher.Constraint("Coincident", 1, 2, 2, 1),
    Sketcher.Constraint("Coincident", 2, 2, 3, 1),
    Sketcher.Constraint("Coincident", 3, 2, 0, 1),
    Sketcher.Constraint("Vertical", 0),
    Sketcher.Constraint("Horizontal", 1),
    Sketcher.Constraint("Vertical", 2),
    Sketcher.Constraint("Horizontal", 3),
    Sketcher.Constraint("DistanceX", 1, 1, 1, 2, Q("26 mm")),
    Sketcher.Constraint("DistanceY", 0, 1, 0, 2, Q("2.5 mm")),
    Sketcher.Constraint("DistanceY", -1, 1, 2, 2, Q("26 mm")),
    Sketcher.Constraint("DistanceX", 0, 2, -1, 1, Q("0.05 mm")),
])
pocket2 = body.newObject("PartDesign::Pocket", "Pocket001")
pocket2.Profile = sketch6
pocket2.Length = 2
pocket2.Reversed = True

# Sketch on YZ plane
sketch7 = body.newObject("Sketcher::SketchObject", "Sketch006")
sketch7.AttachmentSupport = (doc.getObject("YZ_Plane"), [""])
sketch7.MapMode = "FlatFace"
sketch7.AttachmentOffset = App.Placement(V(0, 0, 77.5), App.Rotation())
sketch7.addGeometry([
    Part.LineSegment(V(69, 28, 0), V(53, 28, 0)),  # 0
    Part.LineSegment(V(53, 28, 0), V(53, 15, 0)),  # 1
    Part.LineSegment(V(53, 15, 0), V(69, 15, 0)),  # 2
    Part.LineSegment(V(69, 15, 0), V(69, 28, 0)),  # 3
    Part.LineSegment(V(32, 28, 0), V(15, 28, 0)),  # 4
    Part.LineSegment(V(15, 28, 0), V(15, 15, 0)),  # 5
    Part.LineSegment(V(15, 15, 0), V(32, 15, 0)),  # 6
    Part.LineSegment(V(32, 15, 0), V(32, 28, 0)),  # 7
], False)
sketch7.addConstraint([
    Sketcher.Constraint("Coincident", 0, 2, 1, 1),
    Sketcher.Constraint("Coincident", 1, 2, 2, 1),
    Sketcher.Constraint("Coincident", 2, 2, 3, 1),
    Sketcher.Constraint("Coincident", 3, 2, 0, 1),
    Sketcher.Constraint("Coincident", 4, 2, 5, 1),
    Sketcher.Constraint("Coincident", 5, 2, 6, 1),
    Sketcher.Constraint("Coincident", 6, 2, 7, 1),
    Sketcher.Constraint("Coincident", 7, 2, 4, 1),
    Sketcher.Constraint("Horizontal", 0),
    Sketcher.Constraint("Vertical", 1),
    Sketcher.Constraint("Horizontal", 2),
    Sketcher.Constraint("Vertical", 3),
    Sketcher.Constraint("Horizontal", 4),
    Sketcher.Constraint("Vertical", 5),
    Sketcher.Constraint("Horizontal", 6),
    Sketcher.Constraint("Vertical", 7),
    Sketcher.Constraint("Horizontal", 3, 2, 4, 2),
    Sketcher.Constraint("Horizontal", 2, 2, 5, 2),
    Sketcher.Constraint("Equal", 2, 4),
    Sketcher.Constraint("DistanceX", 0, 2, 0, 1, Q("16.5 mm")),
    Sketcher.Constraint("DistanceY", 1, 2, 1, 1, Q("13.5 mm")),
    Sketcher.Constraint("DistanceY", -1, 1, 1, 2, Q("15 mm")),
    Sketcher.Constraint("DistanceX", 4, 2, 0, 2, Q("37.9 mm")),
    Sketcher.Constraint("DistanceX", -1, 1, 0, 2, Q("52.95 mm")),
])
pocket3 = body.newObject("PartDesign::Pocket", "Pocket002")
pocket3.Profile = sketch7
pocket3.Length = 2

# Sketch on YZ plane
sketch8 = body.newObject("Sketcher::SketchObject", "Sketch007")
sketch8.AttachmentSupport = (doc.getObject("YZ_Plane"), [""])
sketch8.MapMode = "FlatFace"
sketch8.AttachmentOffset = App.Placement(V(0, 0, 77.5), App.Rotation())
sketch8.addGeometry([
    Part.LineSegment(V(-10, 28, 0), V(-24, 28, 0)),
    Part.LineSegment(V(-24, 28, 0), V(-24, 22, 0)),
    Part.LineSegment(V(-24, 22, 0), V(-10, 22, 0)),
    Part.LineSegment(V(-10, 22, 0), V(-10, 28, 0)),
], False)
sketch8.addConstraint([
    Sketcher.Constraint("Coincident", 0, 2, 1, 1),
    Sketcher.Constraint("Coincident", 1, 2, 2, 1),
    Sketcher.Constraint("Coincident", 2, 2, 3, 1),
    Sketcher.Constraint("Coincident", 3, 2, 0, 1),
    Sketcher.Constraint("Horizontal", 0),
    Sketcher.Constraint("Vertical", 1),
    Sketcher.Constraint("Horizontal", 2),
    Sketcher.Constraint("Vertical", 3),
    Sketcher.Constraint("DistanceX", 0, 2, 0, 1, Q("13 mm")),
    Sketcher.Constraint("DistanceY", 1, 2, 1, 1, Q("6.1 mm")),
    Sketcher.Constraint("DistanceY", -1, 1, 0, 2, Q("28 mm")),
    Sketcher.Constraint("DistanceX", 0, 2, -1, 1, Q("23.5 mm")),
])
pocket4 = body.newObject("PartDesign::Pocket", "Pocket003")
pocket4.Profile = sketch8
pocket4.Length = 2

# Sketch on YZ plane
sketch9 = body.newObject("Sketcher::SketchObject", "Sketch008")
sketch9.AttachmentSupport = (doc.getObject("YZ_Plane"), [""])
sketch9.MapMode = "FlatFace"
sketch9.AttachmentOffset = App.Placement(V(0, 0, 77.5), App.Rotation())
sketch9.addGeometry(Part.Circle(V(-45.7, 26.5, 0), V(0, 0, 1), 4), False)
sketch9.addConstraint([
    Sketcher.Constraint("Diameter", 0, Q("8 mm")),
    Sketcher.Constraint("DistanceX", 0, 3, -1, 1, Q("45.7 mm")),
    Sketcher.Constraint("DistanceY", -1, 1, 0, 3, Q("26.5 mm")),
])
pocket5 = body.newObject("PartDesign::Pocket", "Pocket004")
pocket5.Profile = sketch9
pocket5.Length = 2

doc.recompute()
